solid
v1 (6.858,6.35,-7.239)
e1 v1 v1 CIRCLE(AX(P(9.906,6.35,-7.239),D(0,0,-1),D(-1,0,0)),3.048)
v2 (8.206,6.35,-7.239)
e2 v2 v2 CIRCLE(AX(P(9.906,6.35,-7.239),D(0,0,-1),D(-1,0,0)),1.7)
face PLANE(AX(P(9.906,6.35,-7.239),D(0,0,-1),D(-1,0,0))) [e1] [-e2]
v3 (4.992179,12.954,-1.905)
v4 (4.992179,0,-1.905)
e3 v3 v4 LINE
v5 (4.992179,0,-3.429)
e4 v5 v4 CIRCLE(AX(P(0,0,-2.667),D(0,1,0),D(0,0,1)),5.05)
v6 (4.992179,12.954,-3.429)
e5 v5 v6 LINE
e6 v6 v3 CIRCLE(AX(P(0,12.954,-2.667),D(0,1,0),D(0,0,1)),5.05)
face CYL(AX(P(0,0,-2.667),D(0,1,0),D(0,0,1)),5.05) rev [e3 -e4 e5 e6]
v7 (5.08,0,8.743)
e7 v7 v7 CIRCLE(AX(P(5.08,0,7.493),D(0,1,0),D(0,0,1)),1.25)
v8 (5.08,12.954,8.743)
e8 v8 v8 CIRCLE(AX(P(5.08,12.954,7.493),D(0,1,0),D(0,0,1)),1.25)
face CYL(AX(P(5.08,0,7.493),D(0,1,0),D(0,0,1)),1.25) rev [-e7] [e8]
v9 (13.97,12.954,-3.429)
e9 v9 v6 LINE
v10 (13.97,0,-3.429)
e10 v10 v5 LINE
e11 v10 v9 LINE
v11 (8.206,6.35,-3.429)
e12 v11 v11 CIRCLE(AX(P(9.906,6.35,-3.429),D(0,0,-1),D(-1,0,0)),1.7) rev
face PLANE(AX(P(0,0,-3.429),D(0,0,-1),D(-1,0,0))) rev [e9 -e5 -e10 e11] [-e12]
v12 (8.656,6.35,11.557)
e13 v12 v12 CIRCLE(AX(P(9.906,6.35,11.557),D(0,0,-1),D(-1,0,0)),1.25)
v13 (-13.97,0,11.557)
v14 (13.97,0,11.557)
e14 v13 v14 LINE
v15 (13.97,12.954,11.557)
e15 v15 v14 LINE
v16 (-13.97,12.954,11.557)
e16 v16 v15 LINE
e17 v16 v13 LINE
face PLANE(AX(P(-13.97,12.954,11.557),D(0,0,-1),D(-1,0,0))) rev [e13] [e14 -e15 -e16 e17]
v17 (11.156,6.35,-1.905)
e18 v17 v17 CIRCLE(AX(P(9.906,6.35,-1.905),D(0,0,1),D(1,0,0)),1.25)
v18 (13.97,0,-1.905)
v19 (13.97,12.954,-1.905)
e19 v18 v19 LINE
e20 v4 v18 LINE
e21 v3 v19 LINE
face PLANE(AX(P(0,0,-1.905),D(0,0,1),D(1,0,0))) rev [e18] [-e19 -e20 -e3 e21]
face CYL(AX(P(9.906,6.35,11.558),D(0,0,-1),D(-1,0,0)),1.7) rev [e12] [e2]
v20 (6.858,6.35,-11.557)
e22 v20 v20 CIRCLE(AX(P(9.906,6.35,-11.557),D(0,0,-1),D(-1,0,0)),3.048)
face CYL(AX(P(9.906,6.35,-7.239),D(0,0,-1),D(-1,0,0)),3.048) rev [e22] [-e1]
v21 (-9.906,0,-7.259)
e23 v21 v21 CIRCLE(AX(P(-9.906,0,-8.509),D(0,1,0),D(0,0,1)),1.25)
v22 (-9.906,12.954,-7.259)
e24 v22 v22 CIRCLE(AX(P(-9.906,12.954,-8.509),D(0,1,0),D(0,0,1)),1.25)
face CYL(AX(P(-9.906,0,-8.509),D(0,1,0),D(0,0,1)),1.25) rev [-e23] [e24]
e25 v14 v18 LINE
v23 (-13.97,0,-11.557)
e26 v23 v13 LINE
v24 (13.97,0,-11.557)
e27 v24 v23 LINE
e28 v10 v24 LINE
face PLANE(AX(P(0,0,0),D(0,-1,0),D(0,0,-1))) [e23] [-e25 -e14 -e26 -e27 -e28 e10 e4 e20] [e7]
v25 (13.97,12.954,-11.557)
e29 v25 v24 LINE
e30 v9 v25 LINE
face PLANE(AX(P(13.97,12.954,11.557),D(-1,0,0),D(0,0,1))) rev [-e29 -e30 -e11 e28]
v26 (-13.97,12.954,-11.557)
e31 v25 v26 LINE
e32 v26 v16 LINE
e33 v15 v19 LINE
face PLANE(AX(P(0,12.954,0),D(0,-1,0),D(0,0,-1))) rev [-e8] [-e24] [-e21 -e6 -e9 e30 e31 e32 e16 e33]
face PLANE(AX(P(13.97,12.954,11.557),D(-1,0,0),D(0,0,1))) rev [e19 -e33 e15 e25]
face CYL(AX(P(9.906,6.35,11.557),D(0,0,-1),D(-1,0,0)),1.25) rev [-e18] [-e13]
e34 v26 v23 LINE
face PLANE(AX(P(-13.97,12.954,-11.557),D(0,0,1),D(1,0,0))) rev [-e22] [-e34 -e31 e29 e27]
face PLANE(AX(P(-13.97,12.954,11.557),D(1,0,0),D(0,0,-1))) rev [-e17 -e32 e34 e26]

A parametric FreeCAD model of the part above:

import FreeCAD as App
import Part
import Sketcher
Q = App.Units.Quantity

doc = App.newDocument("Part")
body = doc.addObject("PartDesign::Body", "Body")

sketch1 = doc.addObject("Sketcher::SketchObject", "Sketch")
body.addObject(sketch1)
sketch1.AttachmentSupport = (doc.XZ_Plane, [""])
sketch1.MapMode = "FlatFace"
sketch1.addGeometry([
    Part.LineSegment(App.Vector(-14, -12, 0), App.Vector(-14, 12, 0)),
    Part.LineSegment(App.Vector(-14, 12, 0), App.Vector(14, 12, 0)),
    Part.LineSegment(App.Vector(14, 12, 0), App.Vector(14, -12, 0)),
    Part.LineSegment(App.Vector(14, -12, 0), App.Vector(-14, -12, 0)),
], False)
sketch1.addConstraint([
    Sketcher.Constraint("Coincident", 0, 2, 1, 1),
    Sketcher.Constraint("Coincident", 1, 2, 2, 1),
    Sketcher.Constraint("Coincident", 2, 2, 3, 1),
    Sketcher.Constraint("Coincident", 3, 2, 0, 1),
    Sketcher.Constraint("Vertical", 0),
    Sketcher.Constraint("Horizontal", 1),
    Sketcher.Constraint("Vertical", 2),
    Sketcher.Constraint("Horizontal", 3),
    Sketcher.Constraint("Symmetric", 0, 2, 2, 2, -1, 1),
    Sketcher.Constraint("DistanceX", 1, 1, 1, 2, Q("1.1 in")),
    Sketcher.Constraint("DistanceY", 0, 1, 0, 2, Q("0.91 in")),
])
pad1 = doc.addObject("PartDesign::Pad", "Pad")
body.addObject(pad1)
pad1.Profile = sketch1
pad1.Length = Q("0.51 in")
pad1.Reversed = True

sketch2 = doc.addObject("Sketcher::SketchObject", "Sketch001")
body.addObject(sketch2)
sketch2.AttachmentSupport = (doc.XZ_Plane, [""])
sketch2.MapMode = "FlatFace"
sketch2.AttachmentOffset = App.Placement(App.Vector(0, 0, -0.51 * 25.4), App.Rotation())
sketch2.addGeometry(Part.Circle(App.Vector(0, -3, 0), App.Vector(0, 0, 1), 5), False)
sketch2.addConstraint([
    Sketcher.Constraint("PointOnObject", 0, 3, -2),
    Sketcher.Constraint("Diameter", 0, 10.1),
    Sketcher.Constraint("DistanceY", 0, 3, -1, 1, Q("0.105 in")),
])
pocket1 = doc.addObject("PartDesign::Pocket", "Pocket")
body.addObject(pocket1)
pocket1.Profile = sketch2
pocket1.Type = "ThroughAll"
pocket1.Reversed = True

sketch3 = doc.addObject("Sketcher::SketchObject", "Sketch002")
body.addObject(sketch3)
sketch3.AttachmentSupport = (doc.XZ_Plane, [""])
sketch3.MapMode = "FlatFace"
sketch3.AttachmentOffset = App.Placement(App.Vector(0, 0, -0.51 * 25.4), App.Rotation())
sketch3.addGeometry([
    Part.LineSegment(App.Vector(0, -3.4, 0), App.Vector(0, -1.9, 0)),
    Part.LineSegment(App.Vector(0, -1.9, 0), App.Vector(14, -1.9, 0)),
    Part.LineSegment(App.Vector(14, -1.9, 0), App.Vector(14, -3.4, 0)),
    Part.LineSegment(App.Vector(14, -3.4, 0), App.Vector(0, -3.4, 0)),
], False)
sketch3.addConstraint([
    Sketcher.Constraint("Coincident", 0, 2, 1, 1),
    Sketcher.Constraint("Coincident", 1, 2, 2, 1),
    Sketcher.Constraint("Coincident", 2, 2, 3, 1),
    Sketcher.Constraint("Coincident", 3, 2, 0, 1),
    Sketcher.Constraint("Vertical", 0),
    Sketcher.Constraint("Horizontal", 1),
    Sketcher.Constraint("Vertical", 2),
    Sketcher.Constraint("Horizontal", 3),
    Sketcher.Constraint("PointOnObject", 0, 2, -2),
    Sketcher.Constraint("DistanceX", 1, 1, 1, 2, Q("0.55 in")),
    Sketcher.Constraint("DistanceY", 0, 1, 0, 2, Q("0.06 in")),
    Sketcher.Constraint("DistanceY", 0, 2, -1, 1, Q("0.075 in")),
])
pocket2 = doc.addObject("PartDesign::Pocket", "Pocket001")
body.addObject(pocket2)
pocket2.Profile = sketch3
pocket2.Type = "ThroughAll"
pocket2.Reversed = True

sketch4 = doc.addObject("Sketcher::SketchObject", "Sketch003")
body.addObject(sketch4)
sketch4.AttachmentSupport = (doc.XZ_Plane, [""])
sketch4.MapMode = "FlatFace"
sketch4.AttachmentOffset = App.Placement(App.Vector(0, 0, -0.51 * 25.4), App.Rotation())
sketch4.addGeometry([
    Part.Circle(App.Vector(-9.9, -8.5, 0), App.Vector(0, 0, 1), 1.2),
    Part.Circle(App.Vector(5.1, 7.5, 0), App.Vector(0, 0, 1), 1.2),
], False)
sketch4.addConstraint([
    Sketcher.Constraint("Equal", 0, 1),
    Sketcher.Constraint("DistanceX", -1, 1, 1, 3, Q("0.2 in")),
    Sketcher.Constraint("Diameter", 0, 2.5),
    Sketcher.Constraint("DistanceX", 0, 3, -1, 1, Q("0.39 in")),
    Sketcher.Constraint("DistanceY", 0, 3, 1, 3, Q("0.63 in")),
    Sketcher.Constraint("DistanceY", 0, 3, -1, 1, Q("0.335 in")),
])
pocket3 = doc.addObject("PartDesign::Pocket", "Pocket002")
body.addObject(pocket3)
pocket3.Profile = sketch4
pocket3.Type = "ThroughAll"
pocket3.Reversed = True

sketch5 = doc.addObject("Sketcher::SketchObject", "Sketch004")
body.addObject(sketch5)
sketch5.AttachmentSupport = (doc.XY_Plane, [""])
sketch5.MapMode = "FlatFace"
sketch5.AttachmentOffset = App.Placement(App.Vector(0, 0, -0.455 * 25.4), App.Rotation())
sketch5.addGeometry(Part.Circle(App.Vector(9.9, 6.3, 0), App.Vector(0, 0, 1), 3), False)
sketch5.addConstraint([
    Sketcher.Constraint("Diameter", 0, Q("0.24 in")),
    Sketcher.Constraint("DistanceX", -1, 1, 0, 3, Q("0.39 in")),
    Sketcher.Constraint("DistanceY", -1, 1, 0, 3, Q("0.25 in")),
])
pocket4 = doc.addObject("PartDesign::Pocket", "Pocket003")
body.addObject(pocket4)
pocket4.Profile = sketch5
pocket4.Length = Q("0.17 in")
pocket4.Reversed = True

sketch6 = doc.addObject("Sketcher::SketchObject", "Sketch005")
body.addObject(sketch6)
sketch6.AttachmentSupport = (doc.XY_Plane, [""])
sketch6.MapMode = "FlatFace"
sketch6.AttachmentOffset = App.Placement(App.Vector(0, 0, -0.285 * 25.4), App.Rotation())
sketch6.addGeometry(Part.Circle(App.Vector(9.9, 6.3, 0), App.Vector(0, 0, 1), 1.7), False)
sketch6.addConstraint([
    Sketcher.Constraint("Diameter", 0, 3.4),
    Sketcher.Constraint("DistanceX", -1, 1, 0, 3, Q("0.39 in")),
    Sketcher.Constraint("DistanceY", -1, 1, 0, 3, Q("0.25 in")),
])
pocket5 = doc.addObject("PartDesign::Pocket", "Pocket004")
body.addObject(pocket5)
pocket5.Profile = sketch6
pocket5.Type = "UpToFirst"
pocket5.Reversed = True

sketch7 = doc.addObject("Sketcher::SketchObject", "Sketch006")
body.addObject(sketch7)
sketch7.AttachmentSupport = (doc.XY_Plane, [""])
sketch7.MapMode = "FlatFace"
sketch7.AttachmentOffset = App.Placement(App.Vector(0, 0, -0.285 * 25.4), App.Rotation())
sketch7.addGeometry(Part.Circle(App.Vector(9.9, 6.3, 0), App.Vector(0, 0, 1), 1.2), False)
sketch7.addConstraint([
    Sketcher.Constraint("Diameter", 0, 2.5),
    Sketcher.Constraint("DistanceX", -1, 1, 0, 3, Q("0.39 in")),
    Sketcher.Constraint("DistanceY", -1, 1, 0, 3, Q("0.25 in")),
])
pocket6 = doc.addObject("PartDesign::Pocket", "Pocket005")
body.addObject(pocket6)
pocket6.Profile = sketch7
pocket6.Type = "ThroughAll"
pocket6.Reversed = True

doc.recompute()
